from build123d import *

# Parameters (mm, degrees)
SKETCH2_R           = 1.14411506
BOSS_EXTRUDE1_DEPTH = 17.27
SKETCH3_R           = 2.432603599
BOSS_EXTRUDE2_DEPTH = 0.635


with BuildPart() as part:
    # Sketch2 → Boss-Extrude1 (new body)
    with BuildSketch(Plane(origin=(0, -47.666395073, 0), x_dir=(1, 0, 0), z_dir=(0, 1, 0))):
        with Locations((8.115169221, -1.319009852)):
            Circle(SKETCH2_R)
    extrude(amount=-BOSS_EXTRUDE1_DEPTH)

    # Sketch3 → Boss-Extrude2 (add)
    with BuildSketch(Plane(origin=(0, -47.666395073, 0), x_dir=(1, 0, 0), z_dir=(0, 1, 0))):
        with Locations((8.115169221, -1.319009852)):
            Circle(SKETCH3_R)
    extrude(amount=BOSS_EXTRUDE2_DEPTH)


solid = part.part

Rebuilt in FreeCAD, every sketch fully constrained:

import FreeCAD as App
import Part
import Sketcher
from FreeCAD import Vector
Q = App.Units.Quantity

doc = App.newDocument("Part")
params = doc.addObject("Spreadsheet::Sheet", "Params")
for row, (alias, value) in enumerate([
    ("pad1_length", "17.27 mm"),
    ("pad2_length", "0.025 in"),
], start=1):
    params.set(f"A{row}", alias)
    params.set(f"B{row}", "=" + value)
    params.setAlias(f"B{row}", alias)

body = doc.addObject("PartDesign::Body", "Body")

# Sketch on XZ plane
sketch1 = body.newObject("Sketcher::SketchObject", "Sketch")
sketch1.AttachmentSupport = (doc.getObject("XZ_Plane"), [""])
sketch1.MapMode = "FlatFace"
sketch1.AttachmentOffset = App.Placement(Vector(0, 0, 47.666395), App.Rotation())
sketch1.addGeometry(Part.Circle(Vector(8.115169, 1.31901, 0), Vector(0, 0, 1), 1.144115), False)
sketch1.addConstraint(Sketcher.Constraint("Diameter", 0, Q("2.28823 mm")))
sketch1.addConstraint(Sketcher.Constraint("DistanceX", -1, 1, 0, 3, Q("8.115169 mm")))
sketch1.addConstraint(Sketcher.Constraint("DistanceY", -1, 1, 0, 3, Q("1.31901 mm")))
pad1 = body.newObject("PartDesign::Pad", "Pad")
pad1.Profile = sketch1
pad1.setExpression("Length", "Params.pad1_length")

# Sketch on XZ plane
sketch2 = body.newObject("Sketcher::SketchObject", "Sketch001")
sketch2.AttachmentSupport = (doc.getObject("XZ_Plane"), [""])
sketch2.MapMode = "FlatFace"
sketch2.AttachmentOffset = App.Placement(Vector(0, 0, 47.666395), App.Rotation())
sketch2.addGeometry(Part.Circle(Vector(8.115169, 1.31901, 0), Vector(0, 0, 1), 2.432604), False)
sketch2.addConstraint(Sketcher.Constraint("Diameter", 0, Q("4.865207 mm")))
sketch2.addConstraint(Sketcher.Constraint("DistanceX", -1, 1, 0, 3, Q("8.115169 mm")))
sketch2.addConstraint(Sketcher.Constraint("DistanceY", -1, 1, 0, 3, Q("1.31901 mm")))
pad2 = body.newObject("PartDesign::Pad", "Pad001")
pad2.Profile = sketch2
pad2.setExpression("Length", "Params.pad2_length")
pad2.Reversed = True

doc.recompute()
